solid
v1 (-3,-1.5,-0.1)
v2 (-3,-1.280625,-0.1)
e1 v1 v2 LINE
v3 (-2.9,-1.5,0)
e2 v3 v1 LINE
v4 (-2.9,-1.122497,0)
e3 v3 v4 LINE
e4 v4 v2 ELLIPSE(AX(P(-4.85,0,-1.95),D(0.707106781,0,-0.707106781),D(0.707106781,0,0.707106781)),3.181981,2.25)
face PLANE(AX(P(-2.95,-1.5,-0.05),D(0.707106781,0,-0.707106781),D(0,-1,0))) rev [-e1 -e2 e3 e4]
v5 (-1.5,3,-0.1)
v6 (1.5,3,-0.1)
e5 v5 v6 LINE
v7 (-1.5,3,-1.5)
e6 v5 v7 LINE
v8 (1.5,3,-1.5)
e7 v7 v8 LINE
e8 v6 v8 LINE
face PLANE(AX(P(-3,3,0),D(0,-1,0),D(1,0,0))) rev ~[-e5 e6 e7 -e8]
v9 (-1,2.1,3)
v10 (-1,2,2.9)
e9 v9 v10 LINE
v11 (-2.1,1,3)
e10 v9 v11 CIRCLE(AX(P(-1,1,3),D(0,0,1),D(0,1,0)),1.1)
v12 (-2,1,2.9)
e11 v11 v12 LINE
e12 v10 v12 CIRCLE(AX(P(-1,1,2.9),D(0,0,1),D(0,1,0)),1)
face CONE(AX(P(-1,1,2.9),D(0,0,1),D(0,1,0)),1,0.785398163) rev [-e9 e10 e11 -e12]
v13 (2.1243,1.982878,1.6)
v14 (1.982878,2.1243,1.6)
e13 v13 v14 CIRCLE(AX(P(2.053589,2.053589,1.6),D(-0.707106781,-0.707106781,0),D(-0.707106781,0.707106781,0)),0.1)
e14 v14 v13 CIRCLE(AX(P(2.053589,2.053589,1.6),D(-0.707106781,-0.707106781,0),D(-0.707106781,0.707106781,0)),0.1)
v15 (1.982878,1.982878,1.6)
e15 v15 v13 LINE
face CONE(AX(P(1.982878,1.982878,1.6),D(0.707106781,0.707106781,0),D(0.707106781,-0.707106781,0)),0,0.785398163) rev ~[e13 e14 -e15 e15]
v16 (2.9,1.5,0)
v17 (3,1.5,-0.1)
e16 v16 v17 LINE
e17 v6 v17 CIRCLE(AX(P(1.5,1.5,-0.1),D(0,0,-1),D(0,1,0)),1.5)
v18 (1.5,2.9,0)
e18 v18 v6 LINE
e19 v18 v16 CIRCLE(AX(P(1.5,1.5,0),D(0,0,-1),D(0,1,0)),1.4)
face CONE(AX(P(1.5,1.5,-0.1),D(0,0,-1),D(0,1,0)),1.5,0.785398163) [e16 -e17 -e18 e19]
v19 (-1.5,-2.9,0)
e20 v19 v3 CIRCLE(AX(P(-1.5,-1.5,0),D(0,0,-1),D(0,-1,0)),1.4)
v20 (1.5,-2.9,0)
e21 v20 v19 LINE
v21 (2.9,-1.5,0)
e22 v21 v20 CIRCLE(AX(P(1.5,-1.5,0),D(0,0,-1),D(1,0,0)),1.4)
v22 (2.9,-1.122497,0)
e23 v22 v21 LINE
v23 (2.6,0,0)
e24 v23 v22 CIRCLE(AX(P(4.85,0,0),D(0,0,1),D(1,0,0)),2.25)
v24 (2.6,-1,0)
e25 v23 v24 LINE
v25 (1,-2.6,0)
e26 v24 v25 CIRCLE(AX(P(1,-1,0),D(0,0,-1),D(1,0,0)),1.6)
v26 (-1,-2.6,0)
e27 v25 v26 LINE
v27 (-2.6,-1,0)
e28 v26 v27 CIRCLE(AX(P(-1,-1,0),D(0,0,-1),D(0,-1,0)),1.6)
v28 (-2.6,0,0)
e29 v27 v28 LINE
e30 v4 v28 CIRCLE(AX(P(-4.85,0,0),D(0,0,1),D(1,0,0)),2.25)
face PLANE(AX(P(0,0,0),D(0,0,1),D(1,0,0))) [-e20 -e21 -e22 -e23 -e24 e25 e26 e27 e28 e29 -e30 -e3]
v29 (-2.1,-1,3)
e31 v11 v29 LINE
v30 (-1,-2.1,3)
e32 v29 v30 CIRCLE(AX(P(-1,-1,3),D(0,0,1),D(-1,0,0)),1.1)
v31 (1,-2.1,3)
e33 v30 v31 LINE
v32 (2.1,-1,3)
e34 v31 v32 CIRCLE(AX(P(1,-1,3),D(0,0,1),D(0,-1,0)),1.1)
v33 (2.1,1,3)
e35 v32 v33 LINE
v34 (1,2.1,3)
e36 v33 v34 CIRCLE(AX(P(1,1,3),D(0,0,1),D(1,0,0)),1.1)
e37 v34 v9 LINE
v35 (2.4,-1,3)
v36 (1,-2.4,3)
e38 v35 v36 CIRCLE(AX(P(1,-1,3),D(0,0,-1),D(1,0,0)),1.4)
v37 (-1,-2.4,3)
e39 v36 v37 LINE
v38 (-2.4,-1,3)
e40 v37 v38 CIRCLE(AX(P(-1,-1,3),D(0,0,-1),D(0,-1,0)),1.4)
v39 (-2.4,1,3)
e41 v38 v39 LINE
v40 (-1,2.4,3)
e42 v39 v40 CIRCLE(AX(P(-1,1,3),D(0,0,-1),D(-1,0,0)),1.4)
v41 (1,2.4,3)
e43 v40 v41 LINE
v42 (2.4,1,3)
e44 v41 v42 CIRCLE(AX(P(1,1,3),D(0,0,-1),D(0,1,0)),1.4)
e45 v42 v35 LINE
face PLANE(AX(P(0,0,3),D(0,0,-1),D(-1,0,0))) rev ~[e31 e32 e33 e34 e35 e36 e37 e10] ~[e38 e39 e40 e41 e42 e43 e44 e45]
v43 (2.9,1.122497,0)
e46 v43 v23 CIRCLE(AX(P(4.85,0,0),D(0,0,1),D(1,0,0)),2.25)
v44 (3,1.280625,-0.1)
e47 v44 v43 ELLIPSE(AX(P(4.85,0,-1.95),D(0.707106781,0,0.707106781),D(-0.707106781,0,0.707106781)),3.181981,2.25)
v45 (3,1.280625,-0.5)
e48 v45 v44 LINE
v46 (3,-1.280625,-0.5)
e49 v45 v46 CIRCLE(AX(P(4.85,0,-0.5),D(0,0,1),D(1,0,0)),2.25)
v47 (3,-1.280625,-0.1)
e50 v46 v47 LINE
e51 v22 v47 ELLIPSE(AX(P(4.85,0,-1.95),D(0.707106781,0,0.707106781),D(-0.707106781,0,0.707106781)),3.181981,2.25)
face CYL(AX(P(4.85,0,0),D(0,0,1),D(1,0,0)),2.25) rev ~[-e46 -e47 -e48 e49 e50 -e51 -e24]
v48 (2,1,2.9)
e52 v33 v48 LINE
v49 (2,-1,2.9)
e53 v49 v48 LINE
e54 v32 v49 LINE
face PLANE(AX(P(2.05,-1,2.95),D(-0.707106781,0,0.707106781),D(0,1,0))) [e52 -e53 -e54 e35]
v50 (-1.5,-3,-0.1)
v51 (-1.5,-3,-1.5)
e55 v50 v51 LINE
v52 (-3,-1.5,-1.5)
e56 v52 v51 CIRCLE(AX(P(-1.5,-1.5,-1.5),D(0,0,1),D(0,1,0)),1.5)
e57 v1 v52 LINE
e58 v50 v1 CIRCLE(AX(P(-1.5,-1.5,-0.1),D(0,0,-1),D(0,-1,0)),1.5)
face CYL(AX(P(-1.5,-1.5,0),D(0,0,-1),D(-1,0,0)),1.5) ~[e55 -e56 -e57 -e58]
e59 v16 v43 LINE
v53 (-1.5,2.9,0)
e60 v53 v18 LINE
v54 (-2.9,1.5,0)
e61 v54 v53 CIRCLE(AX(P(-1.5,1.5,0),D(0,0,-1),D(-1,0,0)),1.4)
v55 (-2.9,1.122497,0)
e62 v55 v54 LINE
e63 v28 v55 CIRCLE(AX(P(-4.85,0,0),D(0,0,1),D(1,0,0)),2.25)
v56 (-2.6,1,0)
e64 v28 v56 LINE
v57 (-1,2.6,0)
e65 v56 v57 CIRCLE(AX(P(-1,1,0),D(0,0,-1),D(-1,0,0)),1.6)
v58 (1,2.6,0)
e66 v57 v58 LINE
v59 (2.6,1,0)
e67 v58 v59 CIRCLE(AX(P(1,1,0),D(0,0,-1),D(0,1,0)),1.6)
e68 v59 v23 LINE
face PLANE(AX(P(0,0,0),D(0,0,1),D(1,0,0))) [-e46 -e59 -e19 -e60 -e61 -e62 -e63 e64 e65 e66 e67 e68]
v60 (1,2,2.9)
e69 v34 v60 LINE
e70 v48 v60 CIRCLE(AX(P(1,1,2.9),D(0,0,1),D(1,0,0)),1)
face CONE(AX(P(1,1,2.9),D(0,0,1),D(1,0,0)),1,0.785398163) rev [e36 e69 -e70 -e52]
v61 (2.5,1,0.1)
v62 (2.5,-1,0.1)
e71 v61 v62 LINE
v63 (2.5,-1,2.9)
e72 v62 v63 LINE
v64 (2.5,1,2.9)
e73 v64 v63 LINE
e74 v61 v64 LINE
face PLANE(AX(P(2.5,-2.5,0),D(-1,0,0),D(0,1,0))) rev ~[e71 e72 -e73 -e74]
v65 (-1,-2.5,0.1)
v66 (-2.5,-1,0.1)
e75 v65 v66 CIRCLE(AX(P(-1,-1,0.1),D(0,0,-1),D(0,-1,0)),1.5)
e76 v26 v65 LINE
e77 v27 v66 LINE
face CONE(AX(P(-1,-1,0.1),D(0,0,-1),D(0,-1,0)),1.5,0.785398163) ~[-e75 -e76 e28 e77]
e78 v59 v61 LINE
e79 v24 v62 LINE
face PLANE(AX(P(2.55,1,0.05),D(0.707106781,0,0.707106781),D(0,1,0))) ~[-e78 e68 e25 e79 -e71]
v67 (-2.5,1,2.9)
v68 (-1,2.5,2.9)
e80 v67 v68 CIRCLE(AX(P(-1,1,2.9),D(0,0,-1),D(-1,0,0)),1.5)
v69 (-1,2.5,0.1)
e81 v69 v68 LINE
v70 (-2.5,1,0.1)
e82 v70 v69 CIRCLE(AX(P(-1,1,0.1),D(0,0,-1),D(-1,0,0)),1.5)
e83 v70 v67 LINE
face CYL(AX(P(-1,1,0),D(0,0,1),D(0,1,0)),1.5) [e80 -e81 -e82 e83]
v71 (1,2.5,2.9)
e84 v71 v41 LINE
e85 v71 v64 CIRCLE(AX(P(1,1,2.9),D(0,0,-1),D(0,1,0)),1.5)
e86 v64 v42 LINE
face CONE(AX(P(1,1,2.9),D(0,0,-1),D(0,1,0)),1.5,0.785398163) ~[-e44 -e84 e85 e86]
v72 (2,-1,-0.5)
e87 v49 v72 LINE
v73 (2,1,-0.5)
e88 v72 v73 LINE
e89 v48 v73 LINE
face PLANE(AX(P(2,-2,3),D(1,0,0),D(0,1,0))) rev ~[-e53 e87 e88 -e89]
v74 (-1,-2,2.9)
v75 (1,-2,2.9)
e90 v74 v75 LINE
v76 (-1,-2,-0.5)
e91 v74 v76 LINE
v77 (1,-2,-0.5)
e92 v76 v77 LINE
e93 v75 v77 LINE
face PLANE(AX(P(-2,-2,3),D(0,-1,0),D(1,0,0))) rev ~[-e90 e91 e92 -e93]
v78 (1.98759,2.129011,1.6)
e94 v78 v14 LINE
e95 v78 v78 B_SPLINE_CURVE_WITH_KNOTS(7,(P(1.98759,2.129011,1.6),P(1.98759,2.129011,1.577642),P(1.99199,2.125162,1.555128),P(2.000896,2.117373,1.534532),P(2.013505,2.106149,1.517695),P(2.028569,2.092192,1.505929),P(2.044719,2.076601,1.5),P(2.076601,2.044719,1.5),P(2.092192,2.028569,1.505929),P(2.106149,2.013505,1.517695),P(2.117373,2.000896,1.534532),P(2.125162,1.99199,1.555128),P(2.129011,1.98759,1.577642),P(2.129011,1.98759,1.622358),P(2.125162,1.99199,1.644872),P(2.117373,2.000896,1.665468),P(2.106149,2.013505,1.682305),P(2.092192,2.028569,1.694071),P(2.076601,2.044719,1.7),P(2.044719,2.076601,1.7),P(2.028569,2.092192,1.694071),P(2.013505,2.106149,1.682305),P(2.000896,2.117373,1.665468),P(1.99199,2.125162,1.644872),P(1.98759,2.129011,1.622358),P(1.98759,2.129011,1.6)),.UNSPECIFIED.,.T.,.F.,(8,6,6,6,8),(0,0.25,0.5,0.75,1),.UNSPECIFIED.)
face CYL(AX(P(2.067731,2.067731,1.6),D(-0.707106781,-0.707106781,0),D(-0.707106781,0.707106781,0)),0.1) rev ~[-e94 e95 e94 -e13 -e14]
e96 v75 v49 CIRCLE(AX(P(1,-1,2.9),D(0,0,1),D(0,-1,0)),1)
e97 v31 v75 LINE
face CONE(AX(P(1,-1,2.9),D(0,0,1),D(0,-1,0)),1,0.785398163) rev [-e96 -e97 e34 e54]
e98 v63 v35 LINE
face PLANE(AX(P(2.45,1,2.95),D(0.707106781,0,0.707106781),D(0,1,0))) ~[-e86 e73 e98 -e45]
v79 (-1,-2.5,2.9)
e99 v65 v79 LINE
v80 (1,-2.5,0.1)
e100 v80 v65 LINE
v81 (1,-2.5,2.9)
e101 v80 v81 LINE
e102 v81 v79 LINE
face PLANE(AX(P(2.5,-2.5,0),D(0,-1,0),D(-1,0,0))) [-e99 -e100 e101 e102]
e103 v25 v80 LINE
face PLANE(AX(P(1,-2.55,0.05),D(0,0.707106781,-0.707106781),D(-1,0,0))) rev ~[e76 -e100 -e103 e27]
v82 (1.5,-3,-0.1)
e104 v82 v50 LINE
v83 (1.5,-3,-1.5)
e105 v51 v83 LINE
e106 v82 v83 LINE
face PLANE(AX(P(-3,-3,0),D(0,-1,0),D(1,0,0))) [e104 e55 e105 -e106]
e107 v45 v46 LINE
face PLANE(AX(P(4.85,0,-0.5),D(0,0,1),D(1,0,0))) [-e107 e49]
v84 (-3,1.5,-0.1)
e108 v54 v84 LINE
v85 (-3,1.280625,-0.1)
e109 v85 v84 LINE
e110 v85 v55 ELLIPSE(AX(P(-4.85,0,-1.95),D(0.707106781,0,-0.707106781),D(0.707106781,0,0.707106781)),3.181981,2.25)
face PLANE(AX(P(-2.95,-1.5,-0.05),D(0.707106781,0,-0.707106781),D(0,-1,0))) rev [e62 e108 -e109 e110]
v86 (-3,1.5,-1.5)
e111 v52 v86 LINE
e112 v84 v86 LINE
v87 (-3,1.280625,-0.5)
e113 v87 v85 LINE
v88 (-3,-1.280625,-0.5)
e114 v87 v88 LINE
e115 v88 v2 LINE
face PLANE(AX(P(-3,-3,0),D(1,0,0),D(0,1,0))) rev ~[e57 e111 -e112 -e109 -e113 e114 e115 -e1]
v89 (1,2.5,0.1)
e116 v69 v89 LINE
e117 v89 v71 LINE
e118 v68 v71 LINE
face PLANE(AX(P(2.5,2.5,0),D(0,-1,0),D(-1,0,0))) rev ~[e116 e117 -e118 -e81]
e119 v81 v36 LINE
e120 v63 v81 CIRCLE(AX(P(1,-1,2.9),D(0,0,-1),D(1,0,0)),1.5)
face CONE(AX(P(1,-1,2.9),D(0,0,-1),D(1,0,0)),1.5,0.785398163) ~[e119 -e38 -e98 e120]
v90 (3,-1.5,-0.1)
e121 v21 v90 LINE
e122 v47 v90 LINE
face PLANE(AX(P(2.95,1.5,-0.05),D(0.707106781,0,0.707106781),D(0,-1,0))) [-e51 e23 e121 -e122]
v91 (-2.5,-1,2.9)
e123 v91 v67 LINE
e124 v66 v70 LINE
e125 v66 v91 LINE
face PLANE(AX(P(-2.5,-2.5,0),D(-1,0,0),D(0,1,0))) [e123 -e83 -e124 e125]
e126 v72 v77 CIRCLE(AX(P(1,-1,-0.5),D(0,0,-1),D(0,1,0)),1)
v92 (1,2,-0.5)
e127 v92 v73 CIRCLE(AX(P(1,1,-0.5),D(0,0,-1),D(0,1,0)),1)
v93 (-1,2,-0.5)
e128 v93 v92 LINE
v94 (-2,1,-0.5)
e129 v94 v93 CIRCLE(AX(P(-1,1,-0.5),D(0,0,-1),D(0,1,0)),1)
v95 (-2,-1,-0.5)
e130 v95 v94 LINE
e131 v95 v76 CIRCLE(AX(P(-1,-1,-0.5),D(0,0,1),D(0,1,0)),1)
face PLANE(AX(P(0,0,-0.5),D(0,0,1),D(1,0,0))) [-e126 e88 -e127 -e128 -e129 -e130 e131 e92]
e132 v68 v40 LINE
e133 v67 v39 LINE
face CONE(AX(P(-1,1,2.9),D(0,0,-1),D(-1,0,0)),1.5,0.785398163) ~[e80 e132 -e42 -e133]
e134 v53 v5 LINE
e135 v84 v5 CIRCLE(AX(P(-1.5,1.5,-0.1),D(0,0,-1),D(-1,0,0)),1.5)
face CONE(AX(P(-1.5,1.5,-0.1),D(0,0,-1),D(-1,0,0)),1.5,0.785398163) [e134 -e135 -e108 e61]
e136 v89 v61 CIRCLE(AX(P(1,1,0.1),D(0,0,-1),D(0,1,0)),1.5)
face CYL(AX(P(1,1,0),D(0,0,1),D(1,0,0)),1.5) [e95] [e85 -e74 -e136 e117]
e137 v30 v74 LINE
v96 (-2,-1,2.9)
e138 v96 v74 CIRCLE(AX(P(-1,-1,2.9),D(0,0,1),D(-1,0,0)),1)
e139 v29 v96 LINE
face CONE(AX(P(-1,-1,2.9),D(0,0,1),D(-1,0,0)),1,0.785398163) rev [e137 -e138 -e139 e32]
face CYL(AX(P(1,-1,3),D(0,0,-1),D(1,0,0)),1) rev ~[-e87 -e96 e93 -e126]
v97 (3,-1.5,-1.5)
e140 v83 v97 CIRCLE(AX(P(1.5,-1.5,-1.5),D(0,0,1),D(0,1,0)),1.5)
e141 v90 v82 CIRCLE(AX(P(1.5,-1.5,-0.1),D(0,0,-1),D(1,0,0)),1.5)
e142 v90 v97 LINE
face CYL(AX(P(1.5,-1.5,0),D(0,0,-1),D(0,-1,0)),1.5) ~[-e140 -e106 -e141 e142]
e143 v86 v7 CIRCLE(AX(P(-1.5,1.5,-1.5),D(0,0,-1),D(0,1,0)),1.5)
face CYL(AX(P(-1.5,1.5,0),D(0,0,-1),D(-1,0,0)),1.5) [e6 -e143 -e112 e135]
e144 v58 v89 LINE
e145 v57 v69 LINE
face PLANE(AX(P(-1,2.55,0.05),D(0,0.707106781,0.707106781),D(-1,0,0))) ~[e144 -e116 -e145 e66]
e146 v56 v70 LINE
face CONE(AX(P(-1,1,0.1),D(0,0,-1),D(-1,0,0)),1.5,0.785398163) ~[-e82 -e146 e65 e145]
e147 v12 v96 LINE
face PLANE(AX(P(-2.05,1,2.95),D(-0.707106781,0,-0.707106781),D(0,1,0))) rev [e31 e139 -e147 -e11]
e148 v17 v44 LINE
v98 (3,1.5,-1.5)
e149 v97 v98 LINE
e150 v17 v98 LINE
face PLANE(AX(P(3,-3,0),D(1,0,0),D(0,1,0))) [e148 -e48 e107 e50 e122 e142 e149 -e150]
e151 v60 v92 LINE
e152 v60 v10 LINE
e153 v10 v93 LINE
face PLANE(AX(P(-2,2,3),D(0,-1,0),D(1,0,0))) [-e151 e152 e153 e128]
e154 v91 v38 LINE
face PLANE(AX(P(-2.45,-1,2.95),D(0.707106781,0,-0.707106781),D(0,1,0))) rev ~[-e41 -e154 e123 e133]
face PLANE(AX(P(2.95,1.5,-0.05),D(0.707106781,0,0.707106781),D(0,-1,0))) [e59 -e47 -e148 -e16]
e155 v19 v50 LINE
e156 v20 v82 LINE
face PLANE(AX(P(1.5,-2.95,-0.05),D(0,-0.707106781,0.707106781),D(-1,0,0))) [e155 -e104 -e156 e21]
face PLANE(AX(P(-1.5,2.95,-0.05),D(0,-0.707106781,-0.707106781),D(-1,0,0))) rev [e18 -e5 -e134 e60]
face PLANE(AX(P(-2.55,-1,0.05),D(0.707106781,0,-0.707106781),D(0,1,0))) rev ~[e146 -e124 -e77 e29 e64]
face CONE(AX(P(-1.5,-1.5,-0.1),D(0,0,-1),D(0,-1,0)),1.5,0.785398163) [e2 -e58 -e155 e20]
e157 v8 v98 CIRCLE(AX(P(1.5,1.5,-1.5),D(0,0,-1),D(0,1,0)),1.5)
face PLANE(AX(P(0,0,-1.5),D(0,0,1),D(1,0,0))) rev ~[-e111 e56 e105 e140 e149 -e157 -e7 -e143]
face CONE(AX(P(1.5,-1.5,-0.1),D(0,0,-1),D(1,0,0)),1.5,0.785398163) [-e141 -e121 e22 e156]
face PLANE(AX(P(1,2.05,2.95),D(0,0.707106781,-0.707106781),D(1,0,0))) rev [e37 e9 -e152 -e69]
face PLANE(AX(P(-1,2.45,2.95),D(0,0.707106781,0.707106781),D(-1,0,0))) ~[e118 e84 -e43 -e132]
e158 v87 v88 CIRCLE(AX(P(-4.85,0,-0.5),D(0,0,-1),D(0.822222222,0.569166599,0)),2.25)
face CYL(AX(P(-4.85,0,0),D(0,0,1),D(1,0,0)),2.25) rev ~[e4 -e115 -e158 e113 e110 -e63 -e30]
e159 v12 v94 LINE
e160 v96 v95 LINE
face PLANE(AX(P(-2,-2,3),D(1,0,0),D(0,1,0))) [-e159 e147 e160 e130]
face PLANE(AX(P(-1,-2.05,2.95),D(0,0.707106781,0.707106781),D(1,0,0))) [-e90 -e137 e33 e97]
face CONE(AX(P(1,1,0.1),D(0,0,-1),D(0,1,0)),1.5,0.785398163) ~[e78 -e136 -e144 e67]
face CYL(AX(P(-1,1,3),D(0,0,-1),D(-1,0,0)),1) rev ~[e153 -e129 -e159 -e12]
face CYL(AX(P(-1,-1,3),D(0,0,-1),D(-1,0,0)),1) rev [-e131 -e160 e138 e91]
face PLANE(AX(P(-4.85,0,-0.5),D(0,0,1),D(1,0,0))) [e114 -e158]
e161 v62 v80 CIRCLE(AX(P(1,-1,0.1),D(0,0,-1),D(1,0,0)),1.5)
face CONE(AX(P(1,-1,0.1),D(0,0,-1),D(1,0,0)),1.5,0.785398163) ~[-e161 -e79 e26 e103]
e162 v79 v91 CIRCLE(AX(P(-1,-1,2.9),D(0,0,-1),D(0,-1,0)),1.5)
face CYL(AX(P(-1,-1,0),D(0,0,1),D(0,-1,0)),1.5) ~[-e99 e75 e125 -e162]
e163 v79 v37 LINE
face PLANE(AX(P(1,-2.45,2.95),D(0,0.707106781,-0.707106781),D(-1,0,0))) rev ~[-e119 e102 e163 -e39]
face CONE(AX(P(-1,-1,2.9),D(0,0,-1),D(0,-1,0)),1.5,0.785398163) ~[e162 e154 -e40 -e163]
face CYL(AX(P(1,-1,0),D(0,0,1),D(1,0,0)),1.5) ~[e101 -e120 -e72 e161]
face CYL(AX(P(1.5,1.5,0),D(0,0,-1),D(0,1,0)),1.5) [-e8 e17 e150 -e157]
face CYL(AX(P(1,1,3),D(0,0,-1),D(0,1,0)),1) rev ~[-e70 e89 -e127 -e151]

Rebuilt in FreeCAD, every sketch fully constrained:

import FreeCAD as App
import Part
import Sketcher
from FreeCAD import Vector
Q = App.Units.Quantity


def edges_at(feature, points):
    """Names of the edges that pass closest to the given points."""
    edges = feature.Shape.Edges
    near = lambda p: min(range(len(edges)), key=lambda i: edges[i].distToShape(Part.Vertex(*p))[0])
    return sorted({f"Edge{near(p) + 1}" for p in points})


def add_polygon(sketch, points):
    """Adds a closed chain of lines whose ends are joined by coincident constraints."""
    first, n = sketch.GeometryCount, len(points)
    for a, b in zip(points, points[1:] + points[:1]):
        sketch.addGeometry(Part.LineSegment(App.Vector(*a, 0), App.Vector(*b, 0)), False)
    for i in range(n):
        sketch.addConstraint(Sketcher.Constraint("Coincident", first + i, 2, first + (i + 1) % n, 1))

doc = App.newDocument("Part")
body = doc.addObject("PartDesign::Body", "Body")

# Sketch on XY plane
sketch1 = body.newObject("Sketcher::SketchObject", "Sketch")
sketch1.AttachmentSupport = (doc.getObject("XY_Plane"), [""])
sketch1.MapMode = "FlatFace"
add_polygon(sketch1, [(-3, 3), (-3, -3), (3, -3), (3, 3)])  # lines 0-3
sketch1.addConstraint([
    Sketcher.Constraint("Vertical", 0),
    Sketcher.Constraint("Horizontal", 1),
    Sketcher.Constraint("Vertical", 2),
    Sketcher.Constraint("Horizontal", 3),
    Sketcher.Constraint("Symmetric", 0, 2, 2, 2, -1, 1),
    Sketcher.Constraint("Equal", 3, 0),
    Sketcher.Constraint("DistanceX", 1, 1, 1, 2, Q("6 mm")),
])
pad1 = body.newObject("PartDesign::Pad", "Pad")
pad1.Profile = sketch1
pad1.Length = 1.5
pad1.Reversed = True

# Sketch on XY plane
sketch2 = body.newObject("Sketcher::SketchObject", "Sketch001")
sketch2.AttachmentSupport = (doc.getObject("XY_Plane"), [""])
sketch2.MapMode = "FlatFace"
add_polygon(sketch2, [(2.5, 2.5), (2.5, -2.5), (-2.5, -2.5), (-2.5, 2.5)])  # lines 0-3
sketch2.addConstraint([
    Sketcher.Constraint("Vertical", 0),
    Sketcher.Constraint("Horizontal", 1),
    Sketcher.Constraint("Vertical", 2),
    Sketcher.Constraint("Horizontal", 3),
    Sketcher.Constraint("Symmetric", 0, 2, 2, 2, -1, 1),
    Sketcher.Constraint("Equal", 3, 0),
    Sketcher.Constraint("DistanceX", 1, 2, 1, 1, Q("5 mm")),
])
pad2 = body.newObject("PartDesign::Pad", "Pad001")
pad2.Profile = sketch2
pad2.Length = 3

# Sketch on XY plane
sketch3 = body.newObject("Sketcher::SketchObject", "Sketch002")
sketch3.AttachmentSupport = (doc.getObject("XY_Plane"), [""])
sketch3.MapMode = "FlatFace"
sketch3.AttachmentOffset = App.Placement(Vector(0, 0, 3), App.Rotation())
add_polygon(sketch3, [(-2, 2), (-2, -2), (2, -2), (2, 2)])  # lines 0-3
sketch3.addConstraint([
    Sketcher.Constraint("Vertical", 0),
    Sketcher.Constraint("Horizontal", 1),
    Sketcher.Constraint("Vertical", 2),
    Sketcher.Constraint("Horizontal", 3),
    Sketcher.Constraint("Symmetric", 0, 2, 2, 2, -1, 1),
    Sketcher.Constraint("Equal", 3, 0),
    Sketcher.Constraint("DistanceX", 1, 1, 1, 2, Q("4 mm")),
])
pocket1 = body.newObject("PartDesign::Pocket", "Pocket")
pocket1.Profile = sketch3
pocket1.Length = 3.5
doc.recompute()

fillet = body.newObject("PartDesign::Fillet", "Fillet")
fillet.Base = (pocket1, edges_at(pocket1, [
    (2, 2, 1.25),
    (2, -2, 1.25),
    (-2, -2, 1.25),
    (-2, 2, 1.25),
]))
fillet.Radius = 1
doc.recompute()

fillet2 = body.newObject("PartDesign::Fillet", "Fillet001")
fillet2.Base = (fillet, edges_at(fillet, [
    (-2.5, 2.5, 1.5),
    (-2.5, -2.5, 1.5),
    (2.5, -2.5, 1.5),
    (2.5, 2.5, 1.5),
]))
fillet2.Radius = 1.5
doc.recompute()

fillet3 = body.newObject("PartDesign::Fillet", "Fillet002")
fillet3.Base = (fillet2, edges_at(fillet2, [
    (3, -3, -0.75),
    (-3, -3, -0.75),
    (-3, 3, -0.75),
    (3, 3, -0.75),
]))
fillet3.Radius = 1.5
doc.recompute()

chamfer = body.newObject("PartDesign::Chamfer", "Chamfer")
chamfer.Base = (fillet3, edges_at(fillet3, [
    (0, -2, 3),
    (-2, 0, 3),
    (2, 0, 3),
    (0, 2, 3),
    (-1.707, -1.707, 3),
    (1.707, -1.707, 3),
    (1.707, 1.707, 3),
    (-1.707, 1.707, 3),
    (0, -2.5, 0),
    (0, -2.5, 3),
    (-2.5, 0, 0),
    (-2.5, 0, 3),
    (2.5, 0, 3),
    (0, 2.5, 3),
    (-2.061, 2.061, 3),
    (2.061, 2.061, 3),
    (2.061, -2.061, 3),
    (-2.061, -2.061, 3),
    (2.5, 0, 0),
    (0, 2.5, 0),
    (-2.061, -2.061, 0),
    (2.061, -2.061, 0),
    (2.061, 2.061, 0),
    (-2.061, 2.061, 0),
    (-3, 0, 0),
    (3, 0, 0),
    (0, 3, 0),
    (0, -3, 0),
    (-2.561, 2.561, 0),
    (2.561, 2.561, 0),
    (2.561, -2.561, 0),
    (-2.561, -2.561, 0),
]))
chamfer.Size = 0.1

# Sketch on an angled plane
sketch4 = body.newObject("Sketcher::SketchObject", "Sketch003")
sketch4.Placement = App.Placement(Vector(2.06066, 2.06066, 0), App.Rotation(Vector(0.707106781, -0.707106781, 0), Vector(0, 0, -0.999999999), Vector(0.707106781, 0.707106781, 0), "ZXY"))
sketch4.addGeometry(Part.Circle(Vector(0, -1.6, 0), Vector(0, 0, 1), 0.1), False)
sketch4.addConstraint([
    Sketcher.Constraint("PointOnObject", 0, 3, -2),
    Sketcher.Constraint("Diameter", 0, Q("0.2 mm")),
    Sketcher.Constraint("DistanceY", 0, 3, -1, 1, Q("1.6 mm")),
])
doc.recompute()
hole = body.newObject("PartDesign::Hole", "Hole")
hole.Profile = sketch4
hole.ThreadType = "None"
hole.Diameter = 0.2
hole.DepthType = "Dimension"
hole.Depth = 0.01
hole.DrillPoint = "Angled"
hole.DrillPointAngle = 90

# Sketch on XY plane
sketch5 = body.newObject("Sketcher::SketchObject", "Sketch004")
sketch5.AttachmentSupport = (doc.getObject("XY_Plane"), [""])
sketch5.MapMode = "FlatFace"
sketch5.addGeometry([
    Part.Circle(Vector(-4.85, 0, 0), Vector(0, 0, 1), 2.25),
    Part.Circle(Vector(4.85, 0, 0), Vector(0, 0, 1), 2.25),
], False)
sketch5.addConstraint([
    Sketcher.Constraint("Equal", 0, 1),
    Sketcher.Constraint("Symmetric", 0, 3, 1, 3, -1, 1),
    Sketcher.Constraint("PointOnObject", 0, 3, -1),
    Sketcher.Constraint("Diameter", 0, Q("4.5 mm")),
    Sketcher.Constraint("DistanceX", 0, 3, 1, 3, Q("9.7 mm")),
])
pocket2 = body.newObject("PartDesign::Pocket", "Pocket001")
pocket2.Profile = sketch5
pocket2.Length = 0.5

doc.recompute()
